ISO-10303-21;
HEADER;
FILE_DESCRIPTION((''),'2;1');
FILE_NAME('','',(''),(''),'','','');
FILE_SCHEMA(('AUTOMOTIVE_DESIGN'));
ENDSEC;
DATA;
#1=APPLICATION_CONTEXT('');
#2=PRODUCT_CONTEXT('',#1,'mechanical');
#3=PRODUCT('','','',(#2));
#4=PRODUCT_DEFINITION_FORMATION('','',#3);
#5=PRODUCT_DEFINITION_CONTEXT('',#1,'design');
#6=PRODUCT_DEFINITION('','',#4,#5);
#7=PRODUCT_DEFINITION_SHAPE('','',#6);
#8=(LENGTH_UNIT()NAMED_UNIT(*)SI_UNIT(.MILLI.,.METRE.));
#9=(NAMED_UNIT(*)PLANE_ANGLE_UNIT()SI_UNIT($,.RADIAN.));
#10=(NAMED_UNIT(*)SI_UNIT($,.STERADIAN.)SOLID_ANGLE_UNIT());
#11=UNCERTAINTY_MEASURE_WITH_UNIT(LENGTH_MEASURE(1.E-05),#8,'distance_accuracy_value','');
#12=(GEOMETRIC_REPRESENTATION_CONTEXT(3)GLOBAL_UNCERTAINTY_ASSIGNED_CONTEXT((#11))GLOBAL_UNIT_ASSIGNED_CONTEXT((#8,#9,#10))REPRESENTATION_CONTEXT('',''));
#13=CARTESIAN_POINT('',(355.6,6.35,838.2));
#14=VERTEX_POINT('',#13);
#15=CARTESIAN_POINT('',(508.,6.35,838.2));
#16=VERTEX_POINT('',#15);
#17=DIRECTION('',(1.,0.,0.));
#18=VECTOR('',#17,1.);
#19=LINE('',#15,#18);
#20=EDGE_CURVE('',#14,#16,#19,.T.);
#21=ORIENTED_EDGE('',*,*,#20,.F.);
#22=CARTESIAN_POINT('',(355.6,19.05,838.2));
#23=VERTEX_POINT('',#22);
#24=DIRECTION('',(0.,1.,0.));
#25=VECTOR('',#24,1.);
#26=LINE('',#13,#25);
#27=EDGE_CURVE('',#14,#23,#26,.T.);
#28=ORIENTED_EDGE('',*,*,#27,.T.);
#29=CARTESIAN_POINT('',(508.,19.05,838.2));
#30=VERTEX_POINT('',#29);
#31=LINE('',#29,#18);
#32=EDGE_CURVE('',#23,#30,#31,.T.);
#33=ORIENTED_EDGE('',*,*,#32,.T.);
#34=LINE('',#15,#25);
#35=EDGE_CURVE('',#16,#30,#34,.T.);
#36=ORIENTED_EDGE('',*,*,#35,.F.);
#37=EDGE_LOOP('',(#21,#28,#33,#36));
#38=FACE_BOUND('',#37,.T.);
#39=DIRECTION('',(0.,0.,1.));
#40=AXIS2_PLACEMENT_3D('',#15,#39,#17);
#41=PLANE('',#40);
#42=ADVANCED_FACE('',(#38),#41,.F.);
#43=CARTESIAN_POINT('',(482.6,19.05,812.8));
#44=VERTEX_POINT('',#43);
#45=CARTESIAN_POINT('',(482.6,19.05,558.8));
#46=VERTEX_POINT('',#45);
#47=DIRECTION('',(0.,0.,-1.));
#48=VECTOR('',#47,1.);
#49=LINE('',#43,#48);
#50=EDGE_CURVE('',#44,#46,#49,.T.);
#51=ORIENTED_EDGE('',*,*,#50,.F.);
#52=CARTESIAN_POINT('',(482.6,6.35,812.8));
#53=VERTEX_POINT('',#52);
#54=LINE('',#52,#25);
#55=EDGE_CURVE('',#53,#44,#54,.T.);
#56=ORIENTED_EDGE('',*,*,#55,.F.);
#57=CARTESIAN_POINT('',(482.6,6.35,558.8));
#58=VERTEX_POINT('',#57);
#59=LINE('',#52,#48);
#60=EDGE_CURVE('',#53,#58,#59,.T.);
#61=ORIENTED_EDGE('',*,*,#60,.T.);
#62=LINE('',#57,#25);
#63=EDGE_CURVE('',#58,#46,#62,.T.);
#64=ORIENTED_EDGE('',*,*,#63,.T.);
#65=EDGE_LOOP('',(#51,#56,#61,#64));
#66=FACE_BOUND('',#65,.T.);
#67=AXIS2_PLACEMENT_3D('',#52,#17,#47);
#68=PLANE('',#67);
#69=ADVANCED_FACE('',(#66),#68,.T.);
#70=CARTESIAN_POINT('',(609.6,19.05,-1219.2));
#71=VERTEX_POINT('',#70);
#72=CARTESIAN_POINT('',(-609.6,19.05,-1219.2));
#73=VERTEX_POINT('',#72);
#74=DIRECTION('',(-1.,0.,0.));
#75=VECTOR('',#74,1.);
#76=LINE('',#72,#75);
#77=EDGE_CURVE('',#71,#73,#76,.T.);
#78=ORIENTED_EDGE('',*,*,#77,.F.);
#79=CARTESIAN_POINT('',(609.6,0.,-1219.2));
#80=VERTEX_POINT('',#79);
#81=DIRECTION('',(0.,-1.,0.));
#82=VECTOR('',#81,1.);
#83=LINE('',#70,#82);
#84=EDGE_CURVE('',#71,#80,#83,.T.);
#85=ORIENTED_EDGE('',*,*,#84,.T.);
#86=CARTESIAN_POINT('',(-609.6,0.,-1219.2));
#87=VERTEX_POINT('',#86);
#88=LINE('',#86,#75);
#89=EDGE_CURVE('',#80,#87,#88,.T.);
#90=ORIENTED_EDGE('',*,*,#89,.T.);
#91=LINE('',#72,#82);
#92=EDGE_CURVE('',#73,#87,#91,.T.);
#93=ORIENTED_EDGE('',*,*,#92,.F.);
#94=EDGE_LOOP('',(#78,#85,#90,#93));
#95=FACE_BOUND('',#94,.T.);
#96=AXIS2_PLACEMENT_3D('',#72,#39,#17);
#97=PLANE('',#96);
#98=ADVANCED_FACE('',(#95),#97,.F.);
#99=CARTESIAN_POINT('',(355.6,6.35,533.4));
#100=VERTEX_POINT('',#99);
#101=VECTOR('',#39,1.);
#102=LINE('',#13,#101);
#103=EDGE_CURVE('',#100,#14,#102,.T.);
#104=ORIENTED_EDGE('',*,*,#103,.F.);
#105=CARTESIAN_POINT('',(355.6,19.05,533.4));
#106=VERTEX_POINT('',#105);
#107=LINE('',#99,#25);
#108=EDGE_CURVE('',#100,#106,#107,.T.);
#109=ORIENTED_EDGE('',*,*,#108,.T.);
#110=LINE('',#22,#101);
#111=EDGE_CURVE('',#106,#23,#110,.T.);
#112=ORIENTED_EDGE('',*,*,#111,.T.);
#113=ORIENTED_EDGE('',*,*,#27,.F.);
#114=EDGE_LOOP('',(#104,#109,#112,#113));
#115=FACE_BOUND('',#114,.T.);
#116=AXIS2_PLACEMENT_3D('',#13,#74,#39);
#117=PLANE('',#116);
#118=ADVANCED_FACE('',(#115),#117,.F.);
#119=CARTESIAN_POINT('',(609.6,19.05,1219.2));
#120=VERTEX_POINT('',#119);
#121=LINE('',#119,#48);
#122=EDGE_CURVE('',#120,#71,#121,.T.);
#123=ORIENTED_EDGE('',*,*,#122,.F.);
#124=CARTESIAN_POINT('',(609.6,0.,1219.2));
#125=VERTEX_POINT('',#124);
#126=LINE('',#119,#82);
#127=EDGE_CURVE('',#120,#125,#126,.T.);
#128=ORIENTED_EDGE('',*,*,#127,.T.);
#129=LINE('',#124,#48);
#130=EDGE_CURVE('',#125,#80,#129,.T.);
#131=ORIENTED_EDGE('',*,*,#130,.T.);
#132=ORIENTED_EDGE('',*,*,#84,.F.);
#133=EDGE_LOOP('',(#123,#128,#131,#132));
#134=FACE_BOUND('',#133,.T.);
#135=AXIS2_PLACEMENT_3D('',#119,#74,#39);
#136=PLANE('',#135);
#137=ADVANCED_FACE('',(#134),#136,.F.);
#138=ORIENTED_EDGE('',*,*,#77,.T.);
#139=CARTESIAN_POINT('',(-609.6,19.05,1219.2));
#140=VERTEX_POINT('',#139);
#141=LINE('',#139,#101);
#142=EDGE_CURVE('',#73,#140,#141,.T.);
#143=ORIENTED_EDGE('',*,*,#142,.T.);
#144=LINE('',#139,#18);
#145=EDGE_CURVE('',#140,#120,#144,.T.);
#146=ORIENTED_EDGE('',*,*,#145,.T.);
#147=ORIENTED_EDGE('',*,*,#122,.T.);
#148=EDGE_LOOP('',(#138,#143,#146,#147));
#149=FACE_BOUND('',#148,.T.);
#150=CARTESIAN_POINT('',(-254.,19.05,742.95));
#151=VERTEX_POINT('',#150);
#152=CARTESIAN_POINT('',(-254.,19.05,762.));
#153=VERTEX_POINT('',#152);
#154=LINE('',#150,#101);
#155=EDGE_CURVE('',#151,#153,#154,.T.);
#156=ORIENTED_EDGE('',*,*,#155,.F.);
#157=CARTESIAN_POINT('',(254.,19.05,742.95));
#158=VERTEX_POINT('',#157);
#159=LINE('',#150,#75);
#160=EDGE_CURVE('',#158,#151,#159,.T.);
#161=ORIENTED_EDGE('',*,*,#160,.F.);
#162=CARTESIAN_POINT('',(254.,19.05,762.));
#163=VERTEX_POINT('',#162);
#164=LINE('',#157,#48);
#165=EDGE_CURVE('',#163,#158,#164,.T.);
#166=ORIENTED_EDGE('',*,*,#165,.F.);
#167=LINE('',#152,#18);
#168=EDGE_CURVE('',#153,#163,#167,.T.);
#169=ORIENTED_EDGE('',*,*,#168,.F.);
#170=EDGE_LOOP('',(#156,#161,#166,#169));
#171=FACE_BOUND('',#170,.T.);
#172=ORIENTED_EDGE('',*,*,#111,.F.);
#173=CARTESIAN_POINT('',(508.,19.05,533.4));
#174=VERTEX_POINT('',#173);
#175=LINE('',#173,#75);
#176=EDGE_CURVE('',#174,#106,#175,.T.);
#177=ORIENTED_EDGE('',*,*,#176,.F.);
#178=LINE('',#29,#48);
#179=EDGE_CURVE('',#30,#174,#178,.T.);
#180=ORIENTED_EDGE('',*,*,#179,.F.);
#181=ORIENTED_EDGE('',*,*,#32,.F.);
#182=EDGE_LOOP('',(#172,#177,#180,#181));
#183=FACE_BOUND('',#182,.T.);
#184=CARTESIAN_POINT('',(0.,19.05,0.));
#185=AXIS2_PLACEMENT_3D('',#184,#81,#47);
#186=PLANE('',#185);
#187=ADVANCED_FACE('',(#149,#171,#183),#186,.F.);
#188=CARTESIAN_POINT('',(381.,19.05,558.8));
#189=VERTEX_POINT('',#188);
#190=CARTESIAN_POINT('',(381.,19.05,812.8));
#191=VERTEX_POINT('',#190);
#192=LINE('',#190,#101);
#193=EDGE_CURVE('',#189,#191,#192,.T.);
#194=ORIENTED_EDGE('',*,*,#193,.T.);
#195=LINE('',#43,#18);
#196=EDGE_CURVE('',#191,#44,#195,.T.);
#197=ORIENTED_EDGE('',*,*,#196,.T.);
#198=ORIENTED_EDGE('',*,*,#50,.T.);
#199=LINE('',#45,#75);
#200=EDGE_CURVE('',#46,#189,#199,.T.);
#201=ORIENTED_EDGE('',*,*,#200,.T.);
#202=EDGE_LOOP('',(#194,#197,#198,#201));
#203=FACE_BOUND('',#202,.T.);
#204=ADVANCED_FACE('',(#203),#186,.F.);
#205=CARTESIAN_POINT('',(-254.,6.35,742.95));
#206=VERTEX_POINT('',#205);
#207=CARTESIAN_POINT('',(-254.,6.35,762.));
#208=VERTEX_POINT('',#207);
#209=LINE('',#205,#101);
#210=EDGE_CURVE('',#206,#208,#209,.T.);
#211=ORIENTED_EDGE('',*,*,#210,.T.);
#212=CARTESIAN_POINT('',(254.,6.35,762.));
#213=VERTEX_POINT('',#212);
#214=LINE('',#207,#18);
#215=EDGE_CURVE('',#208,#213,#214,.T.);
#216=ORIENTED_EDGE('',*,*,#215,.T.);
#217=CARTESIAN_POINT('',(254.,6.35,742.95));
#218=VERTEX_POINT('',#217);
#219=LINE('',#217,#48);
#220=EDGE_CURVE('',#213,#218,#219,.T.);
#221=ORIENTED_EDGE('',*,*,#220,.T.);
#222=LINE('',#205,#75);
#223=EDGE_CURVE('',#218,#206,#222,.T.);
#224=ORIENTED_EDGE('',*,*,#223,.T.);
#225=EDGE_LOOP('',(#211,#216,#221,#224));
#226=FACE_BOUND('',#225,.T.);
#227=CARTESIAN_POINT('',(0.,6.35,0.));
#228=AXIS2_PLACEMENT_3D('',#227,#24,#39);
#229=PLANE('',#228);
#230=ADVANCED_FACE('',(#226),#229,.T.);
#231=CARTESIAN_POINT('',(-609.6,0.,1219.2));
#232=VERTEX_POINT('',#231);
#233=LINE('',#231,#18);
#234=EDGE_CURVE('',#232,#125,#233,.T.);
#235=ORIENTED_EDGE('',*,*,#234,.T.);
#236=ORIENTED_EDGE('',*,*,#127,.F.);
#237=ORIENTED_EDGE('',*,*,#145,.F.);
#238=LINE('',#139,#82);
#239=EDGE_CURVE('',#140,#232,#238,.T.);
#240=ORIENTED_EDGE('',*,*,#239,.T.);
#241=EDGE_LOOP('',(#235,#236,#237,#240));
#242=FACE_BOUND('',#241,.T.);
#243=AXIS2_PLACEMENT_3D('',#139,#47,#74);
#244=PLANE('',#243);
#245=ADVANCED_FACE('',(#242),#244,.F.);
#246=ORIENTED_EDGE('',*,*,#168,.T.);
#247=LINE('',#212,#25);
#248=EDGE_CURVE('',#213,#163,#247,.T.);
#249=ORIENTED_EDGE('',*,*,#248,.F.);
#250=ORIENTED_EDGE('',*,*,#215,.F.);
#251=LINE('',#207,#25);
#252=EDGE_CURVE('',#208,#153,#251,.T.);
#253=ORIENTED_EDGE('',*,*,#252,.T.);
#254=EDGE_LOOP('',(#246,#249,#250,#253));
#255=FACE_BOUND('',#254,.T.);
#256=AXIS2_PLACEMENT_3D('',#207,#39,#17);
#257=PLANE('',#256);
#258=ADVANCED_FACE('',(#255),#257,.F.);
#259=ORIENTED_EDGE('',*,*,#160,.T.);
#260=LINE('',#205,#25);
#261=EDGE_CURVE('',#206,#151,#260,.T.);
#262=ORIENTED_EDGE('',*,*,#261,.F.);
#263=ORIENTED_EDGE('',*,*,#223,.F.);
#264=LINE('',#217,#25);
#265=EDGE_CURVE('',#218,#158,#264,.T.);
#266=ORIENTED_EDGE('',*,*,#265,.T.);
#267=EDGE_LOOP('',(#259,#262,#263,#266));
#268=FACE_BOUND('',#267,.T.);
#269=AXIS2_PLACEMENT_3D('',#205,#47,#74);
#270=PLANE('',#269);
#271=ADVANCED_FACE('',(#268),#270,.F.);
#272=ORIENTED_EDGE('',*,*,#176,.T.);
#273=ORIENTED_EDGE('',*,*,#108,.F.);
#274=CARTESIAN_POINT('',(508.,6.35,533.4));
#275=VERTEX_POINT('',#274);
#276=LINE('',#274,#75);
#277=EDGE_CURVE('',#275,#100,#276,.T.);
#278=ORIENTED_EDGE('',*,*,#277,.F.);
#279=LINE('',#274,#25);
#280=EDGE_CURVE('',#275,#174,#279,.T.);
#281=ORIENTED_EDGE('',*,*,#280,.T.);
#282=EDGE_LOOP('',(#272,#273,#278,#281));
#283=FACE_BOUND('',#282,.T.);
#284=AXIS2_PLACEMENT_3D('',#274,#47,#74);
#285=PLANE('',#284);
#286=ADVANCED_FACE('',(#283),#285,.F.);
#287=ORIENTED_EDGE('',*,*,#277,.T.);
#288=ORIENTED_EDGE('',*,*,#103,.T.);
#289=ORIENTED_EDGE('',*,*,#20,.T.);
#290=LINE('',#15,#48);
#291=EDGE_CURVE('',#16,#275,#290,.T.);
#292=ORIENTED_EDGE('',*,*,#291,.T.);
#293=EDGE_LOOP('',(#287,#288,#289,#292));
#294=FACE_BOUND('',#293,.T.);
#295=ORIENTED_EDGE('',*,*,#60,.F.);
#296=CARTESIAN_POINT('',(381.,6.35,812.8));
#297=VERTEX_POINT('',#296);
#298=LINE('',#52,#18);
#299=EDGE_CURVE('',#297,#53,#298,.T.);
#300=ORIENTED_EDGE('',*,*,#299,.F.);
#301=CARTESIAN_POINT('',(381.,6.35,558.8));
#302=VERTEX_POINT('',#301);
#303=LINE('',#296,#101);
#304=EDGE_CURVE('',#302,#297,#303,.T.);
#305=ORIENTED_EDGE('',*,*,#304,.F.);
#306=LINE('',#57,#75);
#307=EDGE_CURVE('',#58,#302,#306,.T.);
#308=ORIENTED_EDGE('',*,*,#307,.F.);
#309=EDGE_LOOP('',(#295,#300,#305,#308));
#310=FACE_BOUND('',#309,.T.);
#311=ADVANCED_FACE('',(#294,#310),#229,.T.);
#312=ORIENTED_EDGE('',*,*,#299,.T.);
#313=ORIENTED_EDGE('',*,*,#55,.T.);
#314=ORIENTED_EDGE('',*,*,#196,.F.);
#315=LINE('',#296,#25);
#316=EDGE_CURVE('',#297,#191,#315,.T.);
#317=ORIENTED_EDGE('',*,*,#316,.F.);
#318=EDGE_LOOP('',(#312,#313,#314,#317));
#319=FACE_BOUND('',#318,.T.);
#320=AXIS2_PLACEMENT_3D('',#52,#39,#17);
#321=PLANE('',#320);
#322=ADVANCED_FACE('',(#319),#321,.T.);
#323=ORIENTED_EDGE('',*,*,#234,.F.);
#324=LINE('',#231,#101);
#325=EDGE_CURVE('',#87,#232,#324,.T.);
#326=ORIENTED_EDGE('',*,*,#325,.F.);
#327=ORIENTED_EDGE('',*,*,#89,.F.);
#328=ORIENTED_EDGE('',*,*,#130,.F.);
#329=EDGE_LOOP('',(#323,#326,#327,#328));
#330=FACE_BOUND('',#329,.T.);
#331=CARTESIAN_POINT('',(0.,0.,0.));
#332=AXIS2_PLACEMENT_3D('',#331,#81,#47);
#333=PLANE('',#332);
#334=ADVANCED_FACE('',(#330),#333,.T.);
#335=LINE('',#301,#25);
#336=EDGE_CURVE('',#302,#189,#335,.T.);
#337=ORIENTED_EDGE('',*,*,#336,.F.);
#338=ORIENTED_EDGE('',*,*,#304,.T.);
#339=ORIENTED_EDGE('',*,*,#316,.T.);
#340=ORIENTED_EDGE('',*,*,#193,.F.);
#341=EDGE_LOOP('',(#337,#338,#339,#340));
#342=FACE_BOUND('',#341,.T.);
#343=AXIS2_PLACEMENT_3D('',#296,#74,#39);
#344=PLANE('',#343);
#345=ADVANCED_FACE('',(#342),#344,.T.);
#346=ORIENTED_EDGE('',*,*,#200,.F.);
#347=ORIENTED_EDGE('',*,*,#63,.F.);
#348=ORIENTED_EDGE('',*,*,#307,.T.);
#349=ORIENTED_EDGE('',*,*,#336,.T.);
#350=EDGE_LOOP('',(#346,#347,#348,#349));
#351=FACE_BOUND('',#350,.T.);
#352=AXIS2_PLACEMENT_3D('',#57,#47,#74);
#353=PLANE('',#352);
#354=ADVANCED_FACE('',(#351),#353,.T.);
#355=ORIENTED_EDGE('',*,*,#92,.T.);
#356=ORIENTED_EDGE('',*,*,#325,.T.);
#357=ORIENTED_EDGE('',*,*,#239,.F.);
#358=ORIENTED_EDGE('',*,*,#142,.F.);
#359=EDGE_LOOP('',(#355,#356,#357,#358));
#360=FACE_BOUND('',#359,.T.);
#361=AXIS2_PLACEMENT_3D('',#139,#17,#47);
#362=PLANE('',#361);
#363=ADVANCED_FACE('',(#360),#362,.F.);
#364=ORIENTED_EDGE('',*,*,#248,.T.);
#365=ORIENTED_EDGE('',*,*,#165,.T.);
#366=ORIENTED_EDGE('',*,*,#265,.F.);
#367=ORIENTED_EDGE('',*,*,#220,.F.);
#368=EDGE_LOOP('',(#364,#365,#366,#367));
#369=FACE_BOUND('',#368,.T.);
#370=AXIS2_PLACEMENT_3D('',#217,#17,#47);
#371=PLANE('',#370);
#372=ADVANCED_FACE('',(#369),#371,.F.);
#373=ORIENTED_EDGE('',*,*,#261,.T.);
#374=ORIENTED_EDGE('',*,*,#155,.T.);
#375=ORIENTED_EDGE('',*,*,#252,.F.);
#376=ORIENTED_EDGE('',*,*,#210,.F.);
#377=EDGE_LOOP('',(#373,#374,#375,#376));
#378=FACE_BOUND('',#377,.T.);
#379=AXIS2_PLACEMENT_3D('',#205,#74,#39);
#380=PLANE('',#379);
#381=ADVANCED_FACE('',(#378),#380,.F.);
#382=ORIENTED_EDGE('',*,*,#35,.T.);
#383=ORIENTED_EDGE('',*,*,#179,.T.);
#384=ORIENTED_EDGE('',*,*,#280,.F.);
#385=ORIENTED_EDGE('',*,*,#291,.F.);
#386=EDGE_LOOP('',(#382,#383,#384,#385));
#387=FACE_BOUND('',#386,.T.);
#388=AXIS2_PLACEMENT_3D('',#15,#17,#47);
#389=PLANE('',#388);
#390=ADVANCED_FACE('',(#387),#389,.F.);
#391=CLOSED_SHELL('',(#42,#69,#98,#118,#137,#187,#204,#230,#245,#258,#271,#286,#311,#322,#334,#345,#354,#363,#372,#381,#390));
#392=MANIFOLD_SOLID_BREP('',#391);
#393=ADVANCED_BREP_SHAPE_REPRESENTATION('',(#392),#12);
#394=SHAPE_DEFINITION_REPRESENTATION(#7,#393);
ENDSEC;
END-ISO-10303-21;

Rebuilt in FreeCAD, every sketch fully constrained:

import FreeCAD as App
import Part
import Sketcher
from FreeCAD import Vector
Q = App.Units.Quantity


def add_polygon(sketch, points):
    """Adds a closed chain of lines whose ends are joined by coincident constraints."""
    first, n = sketch.GeometryCount, len(points)
    for a, b in zip(points, points[1:] + points[:1]):
        sketch.addGeometry(Part.LineSegment(App.Vector(*a, 0), App.Vector(*b, 0)), False)
    for i in range(n):
        sketch.addConstraint(Sketcher.Constraint("Coincident", first + i, 2, first + (i + 1) % n, 1))

doc = App.newDocument("Part")
body = doc.addObject("PartDesign::Body", "Body")

# Sketch on XZ plane
sketch1 = body.newObject("Sketcher::SketchObject", "Sketch")
sketch1.AttachmentSupport = (doc.getObject("XZ_Plane"), [""])
sketch1.MapMode = "FlatFace"
add_polygon(sketch1, [(-610, -1219), (-610, 1219), (610, 1219), (610, -1219)])  # lines 0-3
sketch1.addConstraint(Sketcher.Constraint("Vertical", 0))
sketch1.addConstraint(Sketcher.Constraint("Horizontal", 1))
sketch1.addConstraint(Sketcher.Constraint("Vertical", 2))
sketch1.addConstraint(Sketcher.Constraint("Horizontal", 3))
sketch1.addConstraint(Sketcher.Constraint("Symmetric", 0, 2, 2, 2, -1, 1))
sketch1.addConstraint(Sketcher.Constraint("DistanceX", 1, 1, 1, 2, Q("48 in")))
sketch1.addConstraint(Sketcher.Constraint("DistanceY", 0, 1, 0, 2, Q("96 in")))
pad1 = body.newObject("PartDesign::Pad", "Pad")
pad1.Profile = sketch1
pad1.Length = Q("0.75 in")
pad1.Reversed = True

# Sketch on XZ plane
sketch2 = body.newObject("Sketcher::SketchObject", "Sketch001")
sketch2.AttachmentSupport = (doc.getObject("XZ_Plane"), [""])
sketch2.MapMode = "FlatFace"
sketch2.AttachmentOffset = App.Placement(Vector(0, 0, -0.75 * 25.4), App.Rotation())
add_polygon(sketch2, [(356, 533), (356, 838), (508, 838), (508, 533)])  # lines 0-3
add_polygon(sketch2, [(483, 813), (381, 813), (381, 559), (483, 559)])  # lines 4-7
sketch2.addConstraint(Sketcher.Constraint("Vertical", 0))
sketch2.addConstraint(Sketcher.Constraint("Horizontal", 1))
sketch2.addConstraint(Sketcher.Constraint("Vertical", 2))
sketch2.addConstraint(Sketcher.Constraint("Horizontal", 3))
sketch2.addConstraint(Sketcher.Constraint("Horizontal", 4))
sketch2.addConstraint(Sketcher.Constraint("Vertical", 5))
sketch2.addConstraint(Sketcher.Constraint("Horizontal", 6))
sketch2.addConstraint(Sketcher.Constraint("Vertical", 7))
sketch2.addConstraint(Sketcher.Constraint("DistanceX", 1, 1, 1, 2, Q("6 in")))
sketch2.addConstraint(Sketcher.Constraint("DistanceX", 4, 2, 4, 1, Q("4 in")))
sketch2.addConstraint(Sketcher.Constraint("DistanceY", 0, 1, 0, 2, Q("12 in")))
sketch2.addConstraint(Sketcher.Constraint("DistanceY", 5, 2, 5, 1, Q("10 in")))
sketch2.addConstraint(Sketcher.Constraint("DistanceX", -1, 1, 0, 2, Q("14 in")))
sketch2.addConstraint(Sketcher.Constraint("DistanceY", -1, 1, 0, 2, Q("33 in")))
sketch2.addConstraint(Sketcher.Constraint("DistanceX", -1, 1, 4, 2, Q("15 in")))
sketch2.addConstraint(Sketcher.Constraint("DistanceY", -1, 1, 4, 2, Q("32 in")))
pocket1 = body.newObject("PartDesign::Pocket", "Pocket")
pocket1.Profile = sketch2
pocket1.Length = Q("0.5 in")
pocket1.Reversed = True

# Sketch on XZ plane
sketch3 = body.newObject("Sketcher::SketchObject", "Sketch002")
sketch3.AttachmentSupport = (doc.getObject("XZ_Plane"), [""])
sketch3.MapMode = "FlatFace"
sketch3.AttachmentOffset = App.Placement(Vector(0, 0, -0.75 * 25.4), App.Rotation())
add_polygon(sketch3, [(-254, 743), (-254, 762), (254, 762), (254, 743)])  # lines 0-3
sketch3.addConstraint(Sketcher.Constraint("Vertical", 0))
sketch3.addConstraint(Sketcher.Constraint("Horizontal", 1))
sketch3.addConstraint(Sketcher.Constraint("Vertical", 2))
sketch3.addConstraint(Sketcher.Constraint("Horizontal", 3))
sketch3.addConstraint(Sketcher.Constraint("DistanceX", 1, 1, 1, 2, Q("20 in")))
sketch3.addConstraint(Sketcher.Constraint("DistanceX", 0, 2, -1, 1, Q("10 in")))
sketch3.addConstraint(Sketcher.Constraint("DistanceY", -1, 1, 0, 2, Q("30 in")))
sketch3.addConstraint(Sketcher.Constraint("DistanceY", 0, 1, 0, 2, Q("0.75 in")))
pocket2 = body.newObject("PartDesign::Pocket", "Pocket001")
pocket2.Profile = sketch3
pocket2.Length = Q("0.5 in")
pocket2.Reversed = True

doc.recompute()
